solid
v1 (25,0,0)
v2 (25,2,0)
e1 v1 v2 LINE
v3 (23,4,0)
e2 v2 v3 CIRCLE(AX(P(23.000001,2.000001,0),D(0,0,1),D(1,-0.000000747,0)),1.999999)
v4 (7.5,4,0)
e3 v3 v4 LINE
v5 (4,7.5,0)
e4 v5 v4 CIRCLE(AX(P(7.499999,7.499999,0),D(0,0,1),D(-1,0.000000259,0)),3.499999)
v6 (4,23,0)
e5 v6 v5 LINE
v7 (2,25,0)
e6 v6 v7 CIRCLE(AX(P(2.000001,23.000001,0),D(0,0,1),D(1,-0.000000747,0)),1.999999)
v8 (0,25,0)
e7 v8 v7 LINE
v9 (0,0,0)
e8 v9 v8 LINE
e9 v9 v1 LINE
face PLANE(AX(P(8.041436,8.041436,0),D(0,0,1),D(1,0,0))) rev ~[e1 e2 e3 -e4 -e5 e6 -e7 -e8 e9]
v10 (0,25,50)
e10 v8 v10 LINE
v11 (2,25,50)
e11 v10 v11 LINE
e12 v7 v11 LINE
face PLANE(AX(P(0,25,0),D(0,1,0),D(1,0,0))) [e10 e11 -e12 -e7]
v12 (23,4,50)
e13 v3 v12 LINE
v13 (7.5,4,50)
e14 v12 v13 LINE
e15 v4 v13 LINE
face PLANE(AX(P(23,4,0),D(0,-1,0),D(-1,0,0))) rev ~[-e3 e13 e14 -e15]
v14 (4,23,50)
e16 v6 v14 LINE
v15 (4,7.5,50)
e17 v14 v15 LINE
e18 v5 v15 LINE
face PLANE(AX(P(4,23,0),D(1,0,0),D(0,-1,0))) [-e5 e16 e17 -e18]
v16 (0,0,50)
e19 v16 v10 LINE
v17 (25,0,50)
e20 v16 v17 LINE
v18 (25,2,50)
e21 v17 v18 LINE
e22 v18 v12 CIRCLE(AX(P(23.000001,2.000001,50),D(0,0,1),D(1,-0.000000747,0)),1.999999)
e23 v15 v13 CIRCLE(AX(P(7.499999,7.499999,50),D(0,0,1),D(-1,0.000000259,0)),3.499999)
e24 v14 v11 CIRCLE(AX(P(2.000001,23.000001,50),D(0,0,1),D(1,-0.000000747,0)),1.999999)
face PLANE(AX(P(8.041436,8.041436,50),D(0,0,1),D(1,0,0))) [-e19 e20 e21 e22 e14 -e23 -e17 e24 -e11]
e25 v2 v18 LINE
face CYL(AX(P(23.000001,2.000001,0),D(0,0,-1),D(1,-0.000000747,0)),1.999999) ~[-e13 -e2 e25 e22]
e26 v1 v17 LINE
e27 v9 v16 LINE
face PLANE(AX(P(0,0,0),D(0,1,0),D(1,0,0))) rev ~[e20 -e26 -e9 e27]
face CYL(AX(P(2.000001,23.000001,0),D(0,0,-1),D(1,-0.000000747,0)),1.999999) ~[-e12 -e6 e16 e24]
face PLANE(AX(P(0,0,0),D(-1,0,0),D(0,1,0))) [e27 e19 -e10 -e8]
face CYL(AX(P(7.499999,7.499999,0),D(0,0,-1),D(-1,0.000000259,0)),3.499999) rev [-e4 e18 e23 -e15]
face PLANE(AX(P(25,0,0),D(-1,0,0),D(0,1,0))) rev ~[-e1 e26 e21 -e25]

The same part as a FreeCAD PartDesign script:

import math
import FreeCAD as App
import Part
import Sketcher

doc = App.newDocument("Part")
body = doc.addObject("PartDesign::Body", "Body")

sketch1 = body.newObject("Sketcher::SketchObject", "Sketch")
sketch1.AttachmentSupport = (doc.getObject("XY_Plane"), [""])
sketch1.MapMode = "FlatFace"
sketch1.addGeometry(Part.LineSegment(App.Vector(0, 0, 0), App.Vector(25, 0, 0)), False)
sketch1.addGeometry(Part.LineSegment(App.Vector(25, 0, 0), App.Vector(25, 2, 0)), False)
sketch1.addGeometry(Part.ArcOfCircle(Part.Circle(App.Vector(23, 2, 0), App.Vector(0, 0, 1), 2), math.radians(0), math.radians(90)), False)
sketch1.addGeometry(Part.LineSegment(App.Vector(23, 4, 0), App.Vector(7.5, 4, 0)), False)
sketch1.addGeometry(Part.ArcOfCircle(Part.Circle(App.Vector(7.5, 7.5, 0), App.Vector(0, 0, 1), 3.5), math.radians(180), math.radians(270)), False)
sketch1.addGeometry(Part.LineSegment(App.Vector(4, 7.5, 0), App.Vector(4, 23, 0)), False)
sketch1.addGeometry(Part.ArcOfCircle(Part.Circle(App.Vector(2, 23, 0), App.Vector(0, 0, 1), 2), math.radians(0), math.radians(90)), False)
sketch1.addGeometry(Part.LineSegment(App.Vector(2, 25, 0), App.Vector(0, 25, 0)), False)
sketch1.addGeometry(Part.LineSegment(App.Vector(0, 25, 0), App.Vector(0, 0, 0)), False)
sketch1.addConstraint(Sketcher.Constraint("Coincident", 0, 2, 1, 1))
sketch1.addConstraint(Sketcher.Constraint("Tangent", 1, 2, 2, 1))
sketch1.addConstraint(Sketcher.Constraint("Tangent", 2, 2, 3, 1))
sketch1.addConstraint(Sketcher.Constraint("Tangent", 3, 2, 4, 2))
sketch1.addConstraint(Sketcher.Constraint("Tangent", 4, 1, 5, 1))
sketch1.addConstraint(Sketcher.Constraint("Tangent", 5, 2, 6, 1))
sketch1.addConstraint(Sketcher.Constraint("Tangent", 6, 2, 7, 1))
sketch1.addConstraint(Sketcher.Constraint("Coincident", 7, 2, 8, 1))
sketch1.addConstraint(Sketcher.Constraint("Coincident", 8, 2, 0, 1))
sketch1.addConstraint(Sketcher.Constraint("Horizontal", 0))
sketch1.addConstraint(Sketcher.Constraint("Vertical", 1))
sketch1.addConstraint(Sketcher.Constraint("Horizontal", 3))
sketch1.addConstraint(Sketcher.Constraint("Vertical", 5))
sketch1.addConstraint(Sketcher.Constraint("Horizontal", 7))
sketch1.addConstraint(Sketcher.Constraint("Vertical", 8))
sketch1.addConstraint(Sketcher.Constraint("Coincident", 8, 2, -1, 1))
sketch1.addConstraint(Sketcher.Constraint("Equal", 2, 6))
sketch1.addConstraint(Sketcher.Constraint("Equal", 7, 1))
sketch1.addConstraint(Sketcher.Constraint("Equal", 3, 5))
sketch1.addConstraint(Sketcher.Constraint("Radius", 2, 1.999999))
sketch1.addConstraint(Sketcher.Constraint("Radius", 4, 3.499999))
sketch1.addConstraint(Sketcher.Constraint("DistanceX", 0, 1, 0, 2, 25.0))
sketch1.addConstraint(Sketcher.Constraint("DistanceX", 7, 2, 7, 1, 2.0))
pad1 = body.newObject("PartDesign::Pad", "Pad")
pad1.Profile = sketch1
pad1.Length = 50

doc.recompute()
